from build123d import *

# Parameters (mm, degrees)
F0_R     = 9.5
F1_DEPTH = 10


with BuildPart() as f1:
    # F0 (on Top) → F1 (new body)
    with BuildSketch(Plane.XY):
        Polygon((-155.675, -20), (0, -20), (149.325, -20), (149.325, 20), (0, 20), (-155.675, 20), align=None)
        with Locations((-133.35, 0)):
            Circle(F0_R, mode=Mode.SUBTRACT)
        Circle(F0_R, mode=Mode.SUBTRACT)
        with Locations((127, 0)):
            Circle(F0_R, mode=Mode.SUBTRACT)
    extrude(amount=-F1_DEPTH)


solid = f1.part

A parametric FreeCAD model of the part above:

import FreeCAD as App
import Part
import Sketcher
Q = App.Units.Quantity


def add_polygon(sketch, points):
    """Adds a closed chain of lines whose ends are joined by coincident constraints."""
    first, n = sketch.GeometryCount, len(points)
    for a, b in zip(points, points[1:] + points[:1]):
        sketch.addGeometry(Part.LineSegment(App.Vector(*a, 0), App.Vector(*b, 0)), False)
    for i in range(n):
        sketch.addConstraint(Sketcher.Constraint("Coincident", first + i, 2, first + (i + 1) % n, 1))

doc = App.newDocument("Part")
params = doc.addObject("Spreadsheet::Sheet", "Params")
for row, (alias, value) in enumerate([
    ("sketch1_diameter", "19 mm"),
    ("sketch1_width", "305 mm"),
    ("sketch1_height", "40 mm"),
    ("pad1_length", "10 mm"),
], start=1):
    params.set(f"A{row}", alias)
    params.set(f"B{row}", "=" + value)
    params.setAlias(f"B{row}", alias)

body = doc.addObject("PartDesign::Body", "Body")

sketch1 = body.newObject("Sketcher::SketchObject", "Sketch")
sketch1.AttachmentSupport = (doc.getObject("XY_Plane"), [""])
sketch1.MapMode = "FlatFace"
add_polygon(sketch1, [(-156, -20), (149, -20), (149, 20), (-156, 20)])
sketch1.addGeometry(Part.Circle(App.Vector(-133, 0, 0), App.Vector(0, 0, 1), 10), False)
sketch1.addGeometry(Part.Circle(App.Vector(0, 0, 0), App.Vector(0, 0, 1), 10), False)
sketch1.addGeometry(Part.Circle(App.Vector(127, 0, 0), App.Vector(0, 0, 1), 10), False)
sketch1.addConstraint([
    Sketcher.Constraint("Horizontal", 0),
    Sketcher.Constraint("Vertical", 1),
    Sketcher.Constraint("Horizontal", 2),
    Sketcher.Constraint("Vertical", 3),
    Sketcher.Constraint("Coincident", 5, 3, -1, 1),
    Sketcher.Constraint("Equal", 4, 5),
    Sketcher.Constraint("Equal", 5, 6),
    Sketcher.Constraint("PointOnObject", 4, 3, -1),
    Sketcher.Constraint("PointOnObject", 6, 3, -1),
    Sketcher.Constraint("Diameter", 4, Q("19 mm")),
    Sketcher.Constraint("DistanceX", 0, 1, 0, 2, Q("305 mm")),
    Sketcher.Constraint("DistanceY", 1, 1, 1, 2, Q("40 mm")),
    Sketcher.Constraint("DistanceX", -1, 1, 6, 3, Q("127 mm")),
    Sketcher.Constraint("DistanceY", 0, 2, -1, 1, Q("20 mm")),
    Sketcher.Constraint("DistanceX", 4, 3, -1, 1, Q("133.35 mm")),
    Sketcher.Constraint("DistanceX", -1, 1, 0, 2, Q("149.325 mm")),
])
sketch1.setExpression("Constraints[13]", "Params.sketch1_diameter")
sketch1.setExpression("Constraints[14]", "Params.sketch1_width")
sketch1.setExpression("Constraints[15]", "Params.sketch1_height")
pad1 = body.newObject("PartDesign::Pad", "Pad")
pad1.Profile = sketch1
pad1.setExpression("Length", "Params.pad1_length")
pad1.Reversed = True

doc.recompute()
